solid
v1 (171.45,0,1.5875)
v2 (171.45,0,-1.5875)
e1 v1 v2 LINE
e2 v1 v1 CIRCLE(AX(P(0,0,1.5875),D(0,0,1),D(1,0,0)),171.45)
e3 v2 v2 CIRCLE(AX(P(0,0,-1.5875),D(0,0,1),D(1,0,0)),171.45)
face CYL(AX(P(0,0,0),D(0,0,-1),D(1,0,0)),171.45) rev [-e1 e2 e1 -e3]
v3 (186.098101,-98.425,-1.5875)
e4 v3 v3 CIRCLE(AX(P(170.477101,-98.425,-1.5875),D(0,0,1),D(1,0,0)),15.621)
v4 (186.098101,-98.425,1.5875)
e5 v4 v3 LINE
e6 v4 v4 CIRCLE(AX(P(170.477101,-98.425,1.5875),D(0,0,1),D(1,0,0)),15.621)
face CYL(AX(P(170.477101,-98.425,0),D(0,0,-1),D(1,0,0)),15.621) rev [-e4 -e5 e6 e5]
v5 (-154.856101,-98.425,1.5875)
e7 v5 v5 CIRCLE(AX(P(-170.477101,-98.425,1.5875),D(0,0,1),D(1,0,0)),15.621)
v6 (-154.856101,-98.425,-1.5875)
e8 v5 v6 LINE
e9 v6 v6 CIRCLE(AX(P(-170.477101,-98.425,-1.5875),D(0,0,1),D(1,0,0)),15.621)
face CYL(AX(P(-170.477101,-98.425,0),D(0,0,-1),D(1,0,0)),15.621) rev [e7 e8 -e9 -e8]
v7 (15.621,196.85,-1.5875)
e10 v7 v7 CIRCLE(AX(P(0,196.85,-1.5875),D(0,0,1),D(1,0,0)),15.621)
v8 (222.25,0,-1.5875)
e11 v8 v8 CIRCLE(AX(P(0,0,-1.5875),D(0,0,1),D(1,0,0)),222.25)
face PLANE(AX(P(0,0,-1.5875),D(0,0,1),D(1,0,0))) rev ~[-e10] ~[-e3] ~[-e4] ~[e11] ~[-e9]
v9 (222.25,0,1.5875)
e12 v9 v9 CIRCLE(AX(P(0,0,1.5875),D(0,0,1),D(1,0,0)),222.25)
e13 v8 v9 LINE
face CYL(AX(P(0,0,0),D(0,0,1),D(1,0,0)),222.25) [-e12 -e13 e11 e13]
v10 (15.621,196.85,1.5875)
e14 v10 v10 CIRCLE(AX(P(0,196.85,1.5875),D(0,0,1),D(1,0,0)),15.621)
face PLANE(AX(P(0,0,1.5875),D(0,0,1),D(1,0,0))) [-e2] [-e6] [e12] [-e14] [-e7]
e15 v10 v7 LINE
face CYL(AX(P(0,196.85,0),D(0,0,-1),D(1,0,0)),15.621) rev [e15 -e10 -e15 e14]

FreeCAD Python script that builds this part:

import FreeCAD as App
import Part
import Sketcher

V = App.Vector
Q = App.Units.Quantity

doc = App.newDocument("Part")
body = doc.addObject("PartDesign::Body", "Body")

# Sketch on XY plane
sketch1 = body.newObject("Sketcher::SketchObject", "Sketch")
sketch1.AttachmentSupport = (doc.getObject("XY_Plane"), [""])
sketch1.MapMode = "FlatFace"
sketch1.addGeometry([
    Part.Circle(V(0, 0, 0), V(0, 0, 1), 222),  # 0
    Part.Circle(V(-170, -98, 0), V(0, 0, 1), 16),  # 1
    Part.Circle(V(170, -98, 0), V(0, 0, 1), 16),  # 2
    Part.Circle(V(0, 0, 0), V(0, 0, 1), 171),  # 3
    Part.Circle(V(0, 197, 0), V(0, 0, 1), 16),  # 4
], False)
sketch1.addConstraint([
    Sketcher.Constraint("Coincident", 0, 3, -1, 1),
    Sketcher.Constraint("Coincident", 3, 3, -1, 1),
    Sketcher.Constraint("Equal", 1, 2),
    Sketcher.Constraint("Equal", 2, 4),
    Sketcher.Constraint("Symmetric", 1, 3, 2, 3, -2),
    Sketcher.Constraint("PointOnObject", 4, 3, -2),
    Sketcher.Constraint("Diameter", 0, Q("17.5 in")),
    Sketcher.Constraint("Diameter", 3, Q("13.5 in")),
    Sketcher.Constraint("Diameter", 1, Q("1.23 in")),
    Sketcher.Constraint("DistanceY", -1, 1, 4, 3, Q("7.75 in")),
    Sketcher.Constraint("DistanceY", 1, 3, -1, 1, Q("3.875 in")),
    Sketcher.Constraint("DistanceX", 1, 3, -1, 1, 170.477101),
])
pad1 = body.newObject("PartDesign::Pad", "Pad")
pad1.Profile = sketch1
pad1.Length = Q("0.125 in")
pad1.Midplane = True

doc.recompute()
